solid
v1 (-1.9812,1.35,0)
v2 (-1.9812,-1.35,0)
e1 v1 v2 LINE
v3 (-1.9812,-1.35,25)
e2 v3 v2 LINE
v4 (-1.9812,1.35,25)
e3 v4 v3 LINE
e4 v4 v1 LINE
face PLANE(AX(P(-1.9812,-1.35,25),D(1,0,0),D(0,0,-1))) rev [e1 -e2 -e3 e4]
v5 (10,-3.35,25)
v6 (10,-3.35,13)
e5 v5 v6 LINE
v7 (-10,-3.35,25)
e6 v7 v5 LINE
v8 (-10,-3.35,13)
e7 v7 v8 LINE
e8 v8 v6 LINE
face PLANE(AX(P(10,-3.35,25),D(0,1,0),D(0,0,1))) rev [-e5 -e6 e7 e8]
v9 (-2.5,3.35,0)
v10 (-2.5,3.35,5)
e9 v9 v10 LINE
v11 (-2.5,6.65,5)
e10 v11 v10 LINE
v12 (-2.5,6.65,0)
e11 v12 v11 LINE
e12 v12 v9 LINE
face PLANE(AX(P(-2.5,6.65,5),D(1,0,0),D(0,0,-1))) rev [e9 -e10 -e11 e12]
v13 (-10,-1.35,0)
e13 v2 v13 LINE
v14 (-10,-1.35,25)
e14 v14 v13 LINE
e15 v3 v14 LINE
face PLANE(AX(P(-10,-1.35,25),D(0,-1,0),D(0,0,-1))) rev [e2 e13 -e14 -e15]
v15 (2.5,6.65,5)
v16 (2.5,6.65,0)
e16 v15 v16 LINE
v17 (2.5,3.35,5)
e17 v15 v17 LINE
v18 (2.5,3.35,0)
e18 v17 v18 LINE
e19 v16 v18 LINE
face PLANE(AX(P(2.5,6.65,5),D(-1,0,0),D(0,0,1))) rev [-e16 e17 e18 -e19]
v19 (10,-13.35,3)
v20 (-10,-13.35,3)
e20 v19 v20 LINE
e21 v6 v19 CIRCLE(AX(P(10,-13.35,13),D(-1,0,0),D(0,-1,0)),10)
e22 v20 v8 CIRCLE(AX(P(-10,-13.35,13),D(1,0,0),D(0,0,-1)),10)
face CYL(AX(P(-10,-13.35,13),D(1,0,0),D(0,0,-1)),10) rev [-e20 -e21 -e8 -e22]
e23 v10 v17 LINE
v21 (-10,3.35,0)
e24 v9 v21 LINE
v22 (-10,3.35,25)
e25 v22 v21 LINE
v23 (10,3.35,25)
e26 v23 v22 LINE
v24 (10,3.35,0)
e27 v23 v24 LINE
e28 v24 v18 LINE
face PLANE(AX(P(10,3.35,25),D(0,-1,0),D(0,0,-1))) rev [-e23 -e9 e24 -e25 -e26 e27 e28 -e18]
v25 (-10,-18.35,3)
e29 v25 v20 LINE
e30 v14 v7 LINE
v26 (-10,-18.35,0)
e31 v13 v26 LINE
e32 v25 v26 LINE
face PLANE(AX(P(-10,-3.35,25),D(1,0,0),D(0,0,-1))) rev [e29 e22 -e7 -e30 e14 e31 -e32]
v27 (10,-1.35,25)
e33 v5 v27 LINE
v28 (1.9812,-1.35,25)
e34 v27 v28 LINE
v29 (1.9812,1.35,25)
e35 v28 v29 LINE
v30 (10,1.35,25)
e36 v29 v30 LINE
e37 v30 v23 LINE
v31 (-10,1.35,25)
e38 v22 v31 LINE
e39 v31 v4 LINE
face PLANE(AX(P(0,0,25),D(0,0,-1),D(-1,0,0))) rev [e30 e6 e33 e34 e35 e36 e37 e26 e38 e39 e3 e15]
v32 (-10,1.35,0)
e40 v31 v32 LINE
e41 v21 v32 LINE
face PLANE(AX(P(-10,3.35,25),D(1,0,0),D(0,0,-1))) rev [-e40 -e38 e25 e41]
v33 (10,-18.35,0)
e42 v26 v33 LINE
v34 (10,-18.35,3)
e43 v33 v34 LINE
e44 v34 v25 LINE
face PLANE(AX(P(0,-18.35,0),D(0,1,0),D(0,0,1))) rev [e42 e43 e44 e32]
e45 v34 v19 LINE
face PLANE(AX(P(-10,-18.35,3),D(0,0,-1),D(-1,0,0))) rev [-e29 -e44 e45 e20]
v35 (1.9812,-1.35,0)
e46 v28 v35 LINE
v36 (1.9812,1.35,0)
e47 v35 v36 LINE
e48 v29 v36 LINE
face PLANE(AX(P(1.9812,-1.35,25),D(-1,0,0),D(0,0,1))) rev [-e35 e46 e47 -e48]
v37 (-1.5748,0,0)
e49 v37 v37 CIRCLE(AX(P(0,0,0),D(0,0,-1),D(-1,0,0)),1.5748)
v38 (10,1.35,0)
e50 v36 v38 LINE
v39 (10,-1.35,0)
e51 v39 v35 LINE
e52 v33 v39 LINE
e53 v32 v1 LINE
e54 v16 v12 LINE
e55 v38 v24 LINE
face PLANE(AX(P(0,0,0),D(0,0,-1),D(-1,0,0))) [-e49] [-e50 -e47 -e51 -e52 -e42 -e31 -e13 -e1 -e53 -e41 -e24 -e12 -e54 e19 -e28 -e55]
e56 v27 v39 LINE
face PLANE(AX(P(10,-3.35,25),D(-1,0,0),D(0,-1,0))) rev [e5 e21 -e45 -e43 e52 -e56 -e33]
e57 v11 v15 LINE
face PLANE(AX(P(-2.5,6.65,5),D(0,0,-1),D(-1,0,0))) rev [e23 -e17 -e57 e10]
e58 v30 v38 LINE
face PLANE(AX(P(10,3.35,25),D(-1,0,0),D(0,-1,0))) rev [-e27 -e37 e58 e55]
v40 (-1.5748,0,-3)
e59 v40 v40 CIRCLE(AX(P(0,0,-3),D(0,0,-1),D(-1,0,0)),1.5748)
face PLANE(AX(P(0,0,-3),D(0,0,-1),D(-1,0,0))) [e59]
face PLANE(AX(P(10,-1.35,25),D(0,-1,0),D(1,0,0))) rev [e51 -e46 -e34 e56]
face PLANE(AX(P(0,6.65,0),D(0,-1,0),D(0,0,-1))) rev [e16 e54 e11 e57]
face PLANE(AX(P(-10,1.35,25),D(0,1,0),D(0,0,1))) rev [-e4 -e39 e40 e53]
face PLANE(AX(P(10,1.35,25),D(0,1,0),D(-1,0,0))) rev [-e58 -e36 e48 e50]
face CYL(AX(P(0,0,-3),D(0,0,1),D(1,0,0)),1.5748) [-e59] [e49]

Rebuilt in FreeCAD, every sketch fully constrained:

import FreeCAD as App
import Part
import Sketcher
from FreeCAD import Vector
Q = App.Units.Quantity


def edges_at(feature, points):
    """Names of the edges that pass closest to the given points."""
    edges = feature.Shape.Edges
    near = lambda p: min(range(len(edges)), key=lambda i: edges[i].distToShape(Part.Vertex(*p))[0])
    return sorted({f"Edge{near(p) + 1}" for p in points})

doc = App.newDocument("Part")
body = doc.addObject("PartDesign::Body", "Body")

# Sketch on XY plane
sketch1 = body.newObject("Sketcher::SketchObject", "Sketch")
sketch1.AttachmentSupport = (doc.getObject("XY_Plane"), [""])
sketch1.MapMode = "FlatFace"
sketch1.addGeometry([
    Part.LineSegment(Vector(-10, -3.35, 0), Vector(10, -3.35, 0)),  # 0
    Part.LineSegment(Vector(10, -3.35, 0), Vector(10, -1.35, 0)),  # 1
    Part.LineSegment(Vector(10, -1.35, 0), Vector(1.9812, -1.35, 0)),  # 2
    Part.LineSegment(Vector(1.9812, -1.35, 0), Vector(1.9812, 1.35, 0)),  # 3
    Part.LineSegment(Vector(1.9812, 1.35, 0), Vector(10, 1.35, 0)),  # 4
    Part.LineSegment(Vector(10, 1.35, 0), Vector(10, 3.35, 0)),  # 5
    Part.LineSegment(Vector(10, 3.35, 0), Vector(-10, 3.35, 0)),  # 6
    Part.LineSegment(Vector(-10, 3.35, 0), Vector(-10, 1.35, 0)),  # 7
    Part.LineSegment(Vector(-10, 1.35, 0), Vector(-1.9812, 1.35, 0)),  # 8
    Part.LineSegment(Vector(-1.9812, 1.35, 0), Vector(-1.9812, -1.35, 0)),  # 9
    Part.LineSegment(Vector(-1.9812, -1.35, 0), Vector(-10, -1.35, 0)),  # 10
    Part.LineSegment(Vector(-10, -1.35, 0), Vector(-10, -3.35, 0)),  # 11
], False)
sketch1.addConstraint([
    Sketcher.Constraint("Coincident", 0, 2, 1, 1),
    Sketcher.Constraint("Coincident", 1, 2, 2, 1),
    Sketcher.Constraint("Coincident", 2, 2, 3, 1),
    Sketcher.Constraint("Coincident", 3, 2, 4, 1),
    Sketcher.Constraint("Coincident", 4, 2, 5, 1),
    Sketcher.Constraint("Coincident", 5, 2, 6, 1),
    Sketcher.Constraint("Coincident", 6, 2, 7, 1),
    Sketcher.Constraint("Coincident", 7, 2, 8, 1),
    Sketcher.Constraint("Coincident", 8, 2, 9, 1),
    Sketcher.Constraint("Coincident", 9, 2, 10, 1),
    Sketcher.Constraint("Coincident", 10, 2, 11, 1),
    Sketcher.Constraint("Coincident", 11, 2, 0, 1),
    Sketcher.Constraint("Horizontal", 0),
    Sketcher.Constraint("Vertical", 1),
    Sketcher.Constraint("Horizontal", 2),
    Sketcher.Constraint("Vertical", 3),
    Sketcher.Constraint("Horizontal", 4),
    Sketcher.Constraint("Vertical", 5),
    Sketcher.Constraint("Horizontal", 6),
    Sketcher.Constraint("Vertical", 7),
    Sketcher.Constraint("Horizontal", 8),
    Sketcher.Constraint("Vertical", 9),
    Sketcher.Constraint("Horizontal", 10),
    Sketcher.Constraint("Vertical", 11),
    Sketcher.Constraint("Symmetric", 0, 2, 6, 2, -1, 1),
    Sketcher.Constraint("Symmetric", 2, 2, 8, 2, -1, 1),
    Sketcher.Constraint("Symmetric", 4, 2, 10, 2, -1, 1),
    Sketcher.Constraint("Symmetric", 4, 2, 7, 2, -2),
    Sketcher.Constraint("DistanceX", 0, 1, 0, 2, Q("20 mm")),
    Sketcher.Constraint("DistanceY", 1, 1, 1, 2, Q("2 mm")),
    Sketcher.Constraint("DistanceY", 3, 1, 3, 2, Q("2.7 mm")),
    Sketcher.Constraint("DistanceX", 2, 2, 2, 1, Q("8.0188 mm")),
])
pad1 = body.newObject("PartDesign::Pad", "Pad")
pad1.Profile = sketch1
pad1.Length = 25

# Sketch on XZ plane
sketch2 = body.newObject("Sketcher::SketchObject", "Sketch001")
sketch2.AttachmentSupport = (doc.getObject("XZ_Plane"), [""])
sketch2.MapMode = "FlatFace"
sketch2.AttachmentOffset = App.Placement(Vector(0, 0, 3.35), App.Rotation())
sketch2.addGeometry([
    Part.LineSegment(Vector(-10, 3, 0), Vector(-10, 0, 0)),
    Part.LineSegment(Vector(-10, 0, 0), Vector(10, 0, 0)),
    Part.LineSegment(Vector(10, 0, 0), Vector(10, 3, 0)),
    Part.LineSegment(Vector(10, 3, 0), Vector(-10, 3, 0)),
], False)
sketch2.addConstraint([
    Sketcher.Constraint("Coincident", 0, 2, 1, 1),
    Sketcher.Constraint("Coincident", 1, 2, 2, 1),
    Sketcher.Constraint("Coincident", 2, 2, 3, 1),
    Sketcher.Constraint("Coincident", 3, 2, 0, 1),
    Sketcher.Constraint("Vertical", 0),
    Sketcher.Constraint("Horizontal", 1),
    Sketcher.Constraint("Vertical", 2),
    Sketcher.Constraint("Horizontal", 3),
    Sketcher.Constraint("Symmetric", 0, 2, 1, 2, -1, 1),
    Sketcher.Constraint("DistanceX", 1, 1, 1, 2, Q("20 mm")),
    Sketcher.Constraint("DistanceY", 0, 2, 0, 1, Q("3 mm")),
])
pad2 = body.newObject("PartDesign::Pad", "Pad001")
pad2.Profile = sketch2
pad2.Length = 15
doc.recompute()

fillet = body.newObject("PartDesign::Fillet", "Fillet")
fillet.Base = (pad2, edges_at(pad2, [(0, -3.35, 3)]))
fillet.Radius = 10

# Sketch on XY plane
sketch3 = body.newObject("Sketcher::SketchObject", "Sketch002")
sketch3.AttachmentSupport = (doc.getObject("XY_Plane"), [""])
sketch3.MapMode = "FlatFace"
sketch3.addGeometry(Part.Circle(Vector(0, 0, 0), Vector(0, 0, 1), 1.5748), False)
sketch3.addConstraint([
    Sketcher.Constraint("Coincident", 0, 3, -1, 1),
    Sketcher.Constraint("Diameter", 0, Q("3.1496 mm")),
])
pad3 = body.newObject("PartDesign::Pad", "Pad002")
pad3.Profile = sketch3
pad3.Length = 3
pad3.Reversed = True

# Sketch on XZ plane
sketch4 = body.newObject("Sketcher::SketchObject", "Sketch003")
sketch4.AttachmentSupport = (doc.getObject("XZ_Plane"), [""])
sketch4.MapMode = "FlatFace"
sketch4.AttachmentOffset = App.Placement(Vector(0, 0, -3.35), App.Rotation())
sketch4.addGeometry([
    Part.LineSegment(Vector(-2.5, 0, 0), Vector(-2.5, 5, 0)),
    Part.LineSegment(Vector(-2.5, 5, 0), Vector(2.5, 5, 0)),
    Part.LineSegment(Vector(2.5, 5, 0), Vector(2.5, 0, 0)),
    Part.LineSegment(Vector(2.5, 0, 0), Vector(-2.5, 0, 0)),
], False)
sketch4.addConstraint([
    Sketcher.Constraint("Coincident", 0, 2, 1, 1),
    Sketcher.Constraint("Coincident", 1, 2, 2, 1),
    Sketcher.Constraint("Coincident", 2, 2, 3, 1),
    Sketcher.Constraint("Coincident", 3, 2, 0, 1),
    Sketcher.Constraint("Vertical", 0),
    Sketcher.Constraint("Horizontal", 1),
    Sketcher.Constraint("Vertical", 2),
    Sketcher.Constraint("Horizontal", 3),
    Sketcher.Constraint("Symmetric", 2, 2, 3, 2, -1, 1),
    Sketcher.Constraint("Equal", 3, 0),
    Sketcher.Constraint("DistanceX", 1, 1, 1, 2, Q("5 mm")),
])
pad4 = body.newObject("PartDesign::Pad", "Pad003")
pad4.Profile = sketch4
pad4.Length = 3.3
pad4.Reversed = True

doc.recompute()
